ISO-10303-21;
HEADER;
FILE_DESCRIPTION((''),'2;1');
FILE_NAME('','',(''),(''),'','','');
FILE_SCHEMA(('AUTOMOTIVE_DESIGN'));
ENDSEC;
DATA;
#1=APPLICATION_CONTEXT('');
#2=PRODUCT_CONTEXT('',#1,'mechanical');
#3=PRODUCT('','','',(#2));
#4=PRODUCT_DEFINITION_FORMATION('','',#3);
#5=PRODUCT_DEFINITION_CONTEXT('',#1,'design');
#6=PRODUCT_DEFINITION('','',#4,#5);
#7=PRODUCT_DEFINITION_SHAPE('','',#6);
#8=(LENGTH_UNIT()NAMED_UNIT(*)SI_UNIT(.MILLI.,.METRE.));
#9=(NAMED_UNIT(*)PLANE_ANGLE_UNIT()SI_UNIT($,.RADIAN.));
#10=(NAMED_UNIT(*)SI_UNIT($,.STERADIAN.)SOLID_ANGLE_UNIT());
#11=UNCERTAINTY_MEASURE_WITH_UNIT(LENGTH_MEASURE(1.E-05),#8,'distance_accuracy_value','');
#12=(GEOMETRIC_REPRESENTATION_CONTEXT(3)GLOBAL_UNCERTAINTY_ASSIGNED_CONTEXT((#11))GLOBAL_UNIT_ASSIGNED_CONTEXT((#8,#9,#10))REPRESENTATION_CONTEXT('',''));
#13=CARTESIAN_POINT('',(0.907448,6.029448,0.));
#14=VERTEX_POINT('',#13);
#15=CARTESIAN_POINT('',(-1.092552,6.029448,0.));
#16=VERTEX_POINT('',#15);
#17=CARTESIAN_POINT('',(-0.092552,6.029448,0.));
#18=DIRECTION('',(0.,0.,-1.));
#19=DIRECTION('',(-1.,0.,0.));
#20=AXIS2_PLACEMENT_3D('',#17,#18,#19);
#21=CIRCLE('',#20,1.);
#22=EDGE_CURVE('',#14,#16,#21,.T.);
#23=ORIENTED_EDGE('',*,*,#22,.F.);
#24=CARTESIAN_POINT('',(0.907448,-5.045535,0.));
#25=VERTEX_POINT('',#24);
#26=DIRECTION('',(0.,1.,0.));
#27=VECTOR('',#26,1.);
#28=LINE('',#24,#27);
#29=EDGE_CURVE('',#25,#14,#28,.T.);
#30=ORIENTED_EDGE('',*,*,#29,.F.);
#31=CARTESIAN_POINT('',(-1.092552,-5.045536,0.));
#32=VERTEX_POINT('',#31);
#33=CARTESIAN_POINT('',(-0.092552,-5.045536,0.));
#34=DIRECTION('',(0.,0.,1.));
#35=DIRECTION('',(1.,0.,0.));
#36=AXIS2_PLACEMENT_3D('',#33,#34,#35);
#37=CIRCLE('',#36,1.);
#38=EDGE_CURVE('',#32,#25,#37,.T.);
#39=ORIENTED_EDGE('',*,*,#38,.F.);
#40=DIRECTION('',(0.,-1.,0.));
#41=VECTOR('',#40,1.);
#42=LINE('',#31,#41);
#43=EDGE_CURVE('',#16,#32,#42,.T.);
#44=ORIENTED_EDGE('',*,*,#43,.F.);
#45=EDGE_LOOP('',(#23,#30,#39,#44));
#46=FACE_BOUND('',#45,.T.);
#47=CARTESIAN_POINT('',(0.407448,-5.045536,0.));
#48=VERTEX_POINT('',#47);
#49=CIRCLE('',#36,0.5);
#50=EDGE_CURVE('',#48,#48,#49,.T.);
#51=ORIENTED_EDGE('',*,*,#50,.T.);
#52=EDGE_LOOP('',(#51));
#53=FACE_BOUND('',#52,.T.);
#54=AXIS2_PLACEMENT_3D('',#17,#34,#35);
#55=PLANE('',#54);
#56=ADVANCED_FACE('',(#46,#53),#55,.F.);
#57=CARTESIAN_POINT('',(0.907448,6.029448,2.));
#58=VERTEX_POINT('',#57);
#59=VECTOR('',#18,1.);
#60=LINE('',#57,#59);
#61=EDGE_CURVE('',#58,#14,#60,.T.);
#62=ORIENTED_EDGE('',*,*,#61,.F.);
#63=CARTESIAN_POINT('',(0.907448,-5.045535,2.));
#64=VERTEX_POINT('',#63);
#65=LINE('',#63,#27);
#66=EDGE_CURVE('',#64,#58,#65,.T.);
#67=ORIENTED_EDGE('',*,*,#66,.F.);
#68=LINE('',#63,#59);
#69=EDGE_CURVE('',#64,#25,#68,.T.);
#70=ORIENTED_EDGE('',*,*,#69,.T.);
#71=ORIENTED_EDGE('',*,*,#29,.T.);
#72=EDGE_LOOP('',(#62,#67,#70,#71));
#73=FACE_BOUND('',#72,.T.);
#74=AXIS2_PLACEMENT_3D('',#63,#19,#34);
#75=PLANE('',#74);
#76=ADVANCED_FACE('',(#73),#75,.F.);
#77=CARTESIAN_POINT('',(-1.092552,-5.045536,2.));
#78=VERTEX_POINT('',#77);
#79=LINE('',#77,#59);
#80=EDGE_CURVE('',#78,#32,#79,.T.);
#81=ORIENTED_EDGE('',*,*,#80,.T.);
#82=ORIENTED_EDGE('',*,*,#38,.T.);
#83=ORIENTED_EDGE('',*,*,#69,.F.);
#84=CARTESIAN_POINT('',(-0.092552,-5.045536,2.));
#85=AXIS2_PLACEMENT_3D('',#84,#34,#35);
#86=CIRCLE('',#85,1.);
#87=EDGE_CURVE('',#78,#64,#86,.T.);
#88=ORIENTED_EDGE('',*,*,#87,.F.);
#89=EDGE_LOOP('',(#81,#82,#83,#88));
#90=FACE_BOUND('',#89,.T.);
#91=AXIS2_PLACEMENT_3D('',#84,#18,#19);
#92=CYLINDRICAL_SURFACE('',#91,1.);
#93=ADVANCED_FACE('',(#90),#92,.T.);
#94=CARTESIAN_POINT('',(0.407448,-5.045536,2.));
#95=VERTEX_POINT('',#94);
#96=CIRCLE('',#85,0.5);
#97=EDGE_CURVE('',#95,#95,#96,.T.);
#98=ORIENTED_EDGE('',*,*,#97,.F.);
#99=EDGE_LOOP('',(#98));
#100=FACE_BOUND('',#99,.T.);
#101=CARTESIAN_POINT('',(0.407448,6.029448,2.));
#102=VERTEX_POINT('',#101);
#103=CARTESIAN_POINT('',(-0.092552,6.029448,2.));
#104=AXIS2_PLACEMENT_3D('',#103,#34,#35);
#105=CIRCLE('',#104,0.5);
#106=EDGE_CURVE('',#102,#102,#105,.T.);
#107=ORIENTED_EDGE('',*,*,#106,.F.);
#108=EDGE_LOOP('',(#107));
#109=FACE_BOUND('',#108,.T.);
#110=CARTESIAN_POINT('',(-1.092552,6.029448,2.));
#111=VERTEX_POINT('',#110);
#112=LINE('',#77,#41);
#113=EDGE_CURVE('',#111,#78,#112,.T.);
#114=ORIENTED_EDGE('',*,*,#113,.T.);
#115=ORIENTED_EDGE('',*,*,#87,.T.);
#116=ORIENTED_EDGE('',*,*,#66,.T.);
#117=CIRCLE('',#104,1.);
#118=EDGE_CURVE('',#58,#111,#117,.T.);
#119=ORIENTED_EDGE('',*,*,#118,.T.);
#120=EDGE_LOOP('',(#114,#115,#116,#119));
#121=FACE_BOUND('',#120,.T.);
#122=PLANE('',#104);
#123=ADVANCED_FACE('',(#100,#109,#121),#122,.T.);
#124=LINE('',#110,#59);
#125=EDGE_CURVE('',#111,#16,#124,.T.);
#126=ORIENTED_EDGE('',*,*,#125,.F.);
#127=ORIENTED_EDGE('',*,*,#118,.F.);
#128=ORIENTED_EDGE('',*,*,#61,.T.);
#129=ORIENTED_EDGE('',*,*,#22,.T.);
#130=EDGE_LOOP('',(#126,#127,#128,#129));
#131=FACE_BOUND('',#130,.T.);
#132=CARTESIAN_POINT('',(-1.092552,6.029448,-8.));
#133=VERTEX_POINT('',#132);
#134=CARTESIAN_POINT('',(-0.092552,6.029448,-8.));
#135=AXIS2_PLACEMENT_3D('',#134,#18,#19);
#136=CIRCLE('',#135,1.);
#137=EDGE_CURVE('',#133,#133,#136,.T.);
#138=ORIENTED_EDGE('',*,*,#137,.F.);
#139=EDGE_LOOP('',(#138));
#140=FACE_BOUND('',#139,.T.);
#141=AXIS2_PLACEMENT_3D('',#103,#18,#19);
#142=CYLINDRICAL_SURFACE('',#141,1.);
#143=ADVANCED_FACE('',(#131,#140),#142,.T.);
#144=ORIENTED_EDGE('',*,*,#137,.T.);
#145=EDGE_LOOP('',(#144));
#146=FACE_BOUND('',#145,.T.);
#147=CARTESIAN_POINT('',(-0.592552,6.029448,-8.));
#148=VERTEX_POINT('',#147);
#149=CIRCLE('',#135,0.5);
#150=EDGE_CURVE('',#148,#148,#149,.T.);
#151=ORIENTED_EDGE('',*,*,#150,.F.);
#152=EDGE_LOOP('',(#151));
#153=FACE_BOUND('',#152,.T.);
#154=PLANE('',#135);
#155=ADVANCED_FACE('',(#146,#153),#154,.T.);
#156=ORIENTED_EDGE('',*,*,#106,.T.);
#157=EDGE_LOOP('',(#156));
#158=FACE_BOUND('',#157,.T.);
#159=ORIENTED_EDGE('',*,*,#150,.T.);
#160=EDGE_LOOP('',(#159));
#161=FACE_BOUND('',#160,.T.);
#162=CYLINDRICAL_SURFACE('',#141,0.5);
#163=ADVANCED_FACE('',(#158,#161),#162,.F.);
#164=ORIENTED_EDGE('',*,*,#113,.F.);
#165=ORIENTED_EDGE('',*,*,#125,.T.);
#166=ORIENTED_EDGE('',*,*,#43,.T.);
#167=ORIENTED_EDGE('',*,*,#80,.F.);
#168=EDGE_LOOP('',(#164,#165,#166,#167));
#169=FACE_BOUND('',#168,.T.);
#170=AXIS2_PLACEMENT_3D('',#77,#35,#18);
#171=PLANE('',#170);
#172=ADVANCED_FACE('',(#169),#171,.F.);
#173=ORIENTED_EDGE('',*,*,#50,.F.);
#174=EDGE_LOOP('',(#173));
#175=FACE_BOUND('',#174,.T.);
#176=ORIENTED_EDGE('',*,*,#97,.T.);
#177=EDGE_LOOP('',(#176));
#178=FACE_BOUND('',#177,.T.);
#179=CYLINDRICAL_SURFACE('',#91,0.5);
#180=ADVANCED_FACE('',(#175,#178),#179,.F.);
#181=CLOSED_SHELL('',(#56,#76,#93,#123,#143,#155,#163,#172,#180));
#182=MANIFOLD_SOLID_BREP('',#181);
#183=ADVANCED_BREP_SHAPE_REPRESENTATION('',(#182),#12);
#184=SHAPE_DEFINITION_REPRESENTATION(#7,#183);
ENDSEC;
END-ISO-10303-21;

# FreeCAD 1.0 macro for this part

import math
import FreeCAD as App
import Part
import Sketcher
from FreeCAD import Vector
Q = App.Units.Quantity

doc = App.newDocument("Part")
body = doc.addObject("PartDesign::Body", "Body")

# Sketch on XY plane
sketch1 = body.newObject("Sketcher::SketchObject", "Sketch")
sketch1.AttachmentSupport = (doc.getObject("XY_Plane"), [""])
sketch1.MapMode = "FlatFace"
sketch1.addGeometry([
    Part.LineSegment(Vector(-1.092552, 6.029448, 0), Vector(-1.092552, -5.045536, 0)),  # 0
    Part.ArcOfCircle(Part.Circle(Vector(-0.092552, -5.045536, 0), Vector(0, 0, 1), 1), math.radians(180), math.radians(360.000009)),  # 1
    Part.LineSegment(Vector(0.907448, -5.045535, 0), Vector(0.907448, 6.029448, 0)),  # 2
    Part.ArcOfCircle(Part.Circle(Vector(-0.092552, 6.029448, 0), Vector(0, 0, 1), 1), math.radians(0), math.radians(180)),  # 3
    Part.Circle(Vector(-0.092552, -5.045536, 0), Vector(0, 0, 1), 0.5),  # 4
    Part.Circle(Vector(-0.092552, 6.029448, 0), Vector(0, 0, 1), 0.5),  # 5
], False)
sketch1.addConstraint([
    Sketcher.Constraint("Tangent", 0, 2, 1, 1),
    Sketcher.Constraint("Tangent", 1, 2, 2, 1),
    Sketcher.Constraint("Tangent", 2, 2, 3, 1),
    Sketcher.Constraint("Tangent", 3, 2, 0, 1),
    Sketcher.Constraint("Vertical", 0),
    Sketcher.Constraint("Vertical", 2),
    Sketcher.Constraint("Coincident", 4, 3, 1, 3),
    Sketcher.Constraint("Coincident", 5, 3, 3, 3),
    Sketcher.Constraint("Equal", 4, 5),
    Sketcher.Constraint("Diameter", 4, Q("1 mm")),
    Sketcher.Constraint("Radius", 1, Q("1 mm")),
    Sketcher.Constraint("DistanceY", 0, 2, 0, 1, Q("11.074984 mm")),
    Sketcher.Constraint("DistanceX", 1, 3, -1, 1, Q("0.092552 mm")),
    Sketcher.Constraint("DistanceY", -1, 1, 3, 3, Q("6.029448 mm")),
])
pad1 = body.newObject("PartDesign::Pad", "Pad")
pad1.Profile = sketch1
pad1.Length = 2

# Sketch on XY plane
sketch2 = body.newObject("Sketcher::SketchObject", "Sketch001")
sketch2.AttachmentSupport = (doc.getObject("XY_Plane"), [""])
sketch2.MapMode = "FlatFace"
sketch2.AttachmentOffset = App.Placement(Vector(0, 0, -8), App.Rotation())
sketch2.addGeometry([
    Part.Circle(Vector(-0.092552, 6.029448, 0), Vector(0, 0, 1), 1),
    Part.Circle(Vector(-0.092552, 6.029448, 0), Vector(0, 0, 1), 0.5),
], False)
sketch2.addConstraint([
    Sketcher.Constraint("Coincident", 1, 3, 0, 3),
    Sketcher.Constraint("Diameter", 0, Q("2 mm")),
    Sketcher.Constraint("Diameter", 1, Q("1 mm")),
    Sketcher.Constraint("DistanceX", 0, 3, -1, 1, Q("0.092552 mm")),
    Sketcher.Constraint("DistanceY", -1, 1, 0, 3, Q("6.029448 mm")),
])
pad2 = body.newObject("PartDesign::Pad", "Pad001")
pad2.Profile = sketch2
pad2.Length = 8

doc.recompute()
